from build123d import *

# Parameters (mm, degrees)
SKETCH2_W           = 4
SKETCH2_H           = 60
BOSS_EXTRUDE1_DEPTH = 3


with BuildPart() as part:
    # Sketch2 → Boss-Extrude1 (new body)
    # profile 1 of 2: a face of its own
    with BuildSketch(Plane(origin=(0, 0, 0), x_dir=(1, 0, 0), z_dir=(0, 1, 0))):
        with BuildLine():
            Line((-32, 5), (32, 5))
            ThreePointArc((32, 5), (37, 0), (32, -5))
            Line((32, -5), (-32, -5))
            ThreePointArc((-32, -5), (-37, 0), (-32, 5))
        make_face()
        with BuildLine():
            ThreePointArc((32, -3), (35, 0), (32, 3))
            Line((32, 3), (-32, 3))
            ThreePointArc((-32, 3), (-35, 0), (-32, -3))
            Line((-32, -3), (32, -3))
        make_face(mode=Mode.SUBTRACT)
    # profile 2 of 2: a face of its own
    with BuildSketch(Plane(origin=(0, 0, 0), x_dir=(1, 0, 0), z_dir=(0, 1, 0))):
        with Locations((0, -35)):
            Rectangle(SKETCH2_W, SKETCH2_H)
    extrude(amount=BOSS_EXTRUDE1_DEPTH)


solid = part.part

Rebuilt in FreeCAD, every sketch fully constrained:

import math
import FreeCAD as App
import Part
import Sketcher

V = App.Vector

doc = App.newDocument("Part")
body = doc.addObject("PartDesign::Body", "Body")

sketch1 = doc.addObject("Sketcher::SketchObject", "Sketch")
body.addObject(sketch1)
sketch1.AttachmentSupport = (doc.XZ_Plane, [""])
sketch1.MapMode = "FlatFace"
sketch1.addGeometry(Part.LineSegment(V(32, -5, 0), V(-32, -5, 0)), False)
sketch1.addGeometry(Part.ArcOfCircle(Part.Circle(V(-32, 0, 0), V(0, 0, 1), 5), math.radians(90), math.radians(270)), False)
sketch1.addGeometry(Part.LineSegment(V(-32, 5, 0), V(-2, 5, 0)), False)
sketch1.addGeometry(Part.LineSegment(V(-2, 5, 0), V(-2, 65, 0)), False)
sketch1.addGeometry(Part.LineSegment(V(-2, 65, 0), V(2, 65, 0)), False)
sketch1.addGeometry(Part.LineSegment(V(2, 65, 0), V(2, 5, 0)), False)
sketch1.addGeometry(Part.LineSegment(V(2, 5, 0), V(32, 5, 0)), False)
sketch1.addGeometry(Part.ArcOfCircle(Part.Circle(V(32, 0, 0), V(0, 0, 1), 5), math.radians(-90), math.radians(90)), False)
sketch1.addGeometry(Part.LineSegment(V(32, 3, 0), V(-32, 3, 0)), False)
sketch1.addGeometry(Part.ArcOfCircle(Part.Circle(V(-32, 0, 0), V(0, 0, 1), 3), math.radians(90), math.radians(270)), False)
sketch1.addGeometry(Part.LineSegment(V(-32, -3, 0), V(32, -3, 0)), False)
sketch1.addGeometry(Part.ArcOfCircle(Part.Circle(V(32, 0, 0), V(0, 0, 1), 3), math.radians(-90), math.radians(90)), False)
sketch1.addConstraint(Sketcher.Constraint("Tangent", 0, 2, 1, 2))
sketch1.addConstraint(Sketcher.Constraint("Tangent", 1, 1, 2, 1))
sketch1.addConstraint(Sketcher.Constraint("Coincident", 2, 2, 3, 1))
sketch1.addConstraint(Sketcher.Constraint("Coincident", 3, 2, 4, 1))
sketch1.addConstraint(Sketcher.Constraint("Coincident", 4, 2, 5, 1))
sketch1.addConstraint(Sketcher.Constraint("Coincident", 5, 2, 6, 1))
sketch1.addConstraint(Sketcher.Constraint("Tangent", 6, 2, 7, 2))
sketch1.addConstraint(Sketcher.Constraint("Tangent", 7, 1, 0, 1))
sketch1.addConstraint(Sketcher.Constraint("Tangent", 8, 2, 9, 1))
sketch1.addConstraint(Sketcher.Constraint("Tangent", 9, 2, 10, 1))
sketch1.addConstraint(Sketcher.Constraint("Tangent", 10, 2, 11, 1))
sketch1.addConstraint(Sketcher.Constraint("Tangent", 11, 2, 8, 1))
sketch1.addConstraint(Sketcher.Constraint("Horizontal", 0))
sketch1.addConstraint(Sketcher.Constraint("Horizontal", 2))
sketch1.addConstraint(Sketcher.Constraint("Vertical", 3))
sketch1.addConstraint(Sketcher.Constraint("Horizontal", 4))
sketch1.addConstraint(Sketcher.Constraint("Vertical", 5))
sketch1.addConstraint(Sketcher.Constraint("Horizontal", 6))
sketch1.addConstraint(Sketcher.Constraint("Horizontal", 8))
sketch1.addConstraint(Sketcher.Constraint("Horizontal", 10))
sketch1.addConstraint(Sketcher.Constraint("Coincident", 9, 3, 1, 3))
sketch1.addConstraint(Sketcher.Constraint("Coincident", 11, 3, 7, 3))
sketch1.addConstraint(Sketcher.Constraint("Symmetric", 1, 3, 7, 3, -1, 1))
sketch1.addConstraint(Sketcher.Constraint("Equal", 2, 6))
sketch1.addConstraint(Sketcher.Constraint("Radius", 1, 5.0))
sketch1.addConstraint(Sketcher.Constraint("Radius", 9, 3.0))
sketch1.addConstraint(Sketcher.Constraint("DistanceX", 0, 2, 0, 1, 64.0))
sketch1.addConstraint(Sketcher.Constraint("DistanceX", 2, 1, 2, 2, 30.0))
sketch1.addConstraint(Sketcher.Constraint("DistanceY", 3, 1, 3, 2, 60.0))
pad1 = doc.addObject("PartDesign::Pad", "Pad")
body.addObject(pad1)
pad1.Profile = sketch1
pad1.Length = 3
pad1.Reversed = True

doc.recompute()
